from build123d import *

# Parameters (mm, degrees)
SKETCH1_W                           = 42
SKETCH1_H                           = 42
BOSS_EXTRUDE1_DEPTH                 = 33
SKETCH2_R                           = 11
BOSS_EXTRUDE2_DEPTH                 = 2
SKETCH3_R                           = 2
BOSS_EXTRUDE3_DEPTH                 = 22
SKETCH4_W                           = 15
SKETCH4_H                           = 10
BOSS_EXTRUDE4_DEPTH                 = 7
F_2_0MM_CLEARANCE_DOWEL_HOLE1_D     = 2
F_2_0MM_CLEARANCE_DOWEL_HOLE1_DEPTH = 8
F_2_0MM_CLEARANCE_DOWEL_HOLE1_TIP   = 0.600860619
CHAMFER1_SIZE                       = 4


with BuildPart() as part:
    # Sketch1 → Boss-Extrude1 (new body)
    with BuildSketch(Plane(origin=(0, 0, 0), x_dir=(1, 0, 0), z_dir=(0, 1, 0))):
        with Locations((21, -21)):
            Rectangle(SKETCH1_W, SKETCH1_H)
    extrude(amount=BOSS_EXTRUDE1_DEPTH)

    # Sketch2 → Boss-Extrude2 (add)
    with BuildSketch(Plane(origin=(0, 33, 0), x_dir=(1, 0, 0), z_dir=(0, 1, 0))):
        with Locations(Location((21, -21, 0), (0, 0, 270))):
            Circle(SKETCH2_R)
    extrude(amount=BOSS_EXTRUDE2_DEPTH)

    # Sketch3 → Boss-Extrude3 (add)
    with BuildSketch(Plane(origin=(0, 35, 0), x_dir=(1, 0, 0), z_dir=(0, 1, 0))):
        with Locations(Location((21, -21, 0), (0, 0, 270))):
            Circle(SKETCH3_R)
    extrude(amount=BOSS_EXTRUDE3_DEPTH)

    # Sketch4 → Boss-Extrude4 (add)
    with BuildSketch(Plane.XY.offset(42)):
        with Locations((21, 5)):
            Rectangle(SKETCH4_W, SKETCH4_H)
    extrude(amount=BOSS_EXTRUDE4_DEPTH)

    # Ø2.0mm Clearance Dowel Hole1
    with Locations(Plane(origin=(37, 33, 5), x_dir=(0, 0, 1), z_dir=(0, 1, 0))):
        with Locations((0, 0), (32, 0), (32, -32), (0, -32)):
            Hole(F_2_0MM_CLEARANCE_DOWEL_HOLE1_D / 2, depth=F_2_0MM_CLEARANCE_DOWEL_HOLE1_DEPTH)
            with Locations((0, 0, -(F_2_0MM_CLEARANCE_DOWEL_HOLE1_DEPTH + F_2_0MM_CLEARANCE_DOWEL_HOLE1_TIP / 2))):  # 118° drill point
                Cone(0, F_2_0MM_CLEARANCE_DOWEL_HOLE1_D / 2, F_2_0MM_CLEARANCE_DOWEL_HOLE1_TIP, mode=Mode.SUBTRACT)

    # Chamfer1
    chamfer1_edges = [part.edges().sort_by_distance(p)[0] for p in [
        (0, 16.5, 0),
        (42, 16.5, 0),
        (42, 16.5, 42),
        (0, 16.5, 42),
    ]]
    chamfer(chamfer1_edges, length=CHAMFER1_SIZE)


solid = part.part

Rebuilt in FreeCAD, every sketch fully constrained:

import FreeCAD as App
import Part
import Sketcher
from FreeCAD import Vector


def edges_at(feature, points):
    """Names of the edges that pass closest to the given points."""
    edges = feature.Shape.Edges
    near = lambda p: min(range(len(edges)), key=lambda i: edges[i].distToShape(Part.Vertex(*p))[0])
    return sorted({f"Edge{near(p) + 1}" for p in points})


def add_polygon(sketch, points):
    """Adds a closed chain of lines whose ends are joined by coincident constraints."""
    first, n = sketch.GeometryCount, len(points)
    for a, b in zip(points, points[1:] + points[:1]):
        sketch.addGeometry(Part.LineSegment(App.Vector(*a, 0), App.Vector(*b, 0)), False)
    for i in range(n):
        sketch.addConstraint(Sketcher.Constraint("Coincident", first + i, 2, first + (i + 1) % n, 1))

doc = App.newDocument("Part")
body = doc.addObject("PartDesign::Body", "Body")

# Sketch on XZ plane
sketch1 = doc.addObject("Sketcher::SketchObject", "Sketch")
body.addObject(sketch1)
sketch1.AttachmentSupport = (doc.XZ_Plane, [""])
sketch1.MapMode = "FlatFace"
add_polygon(sketch1, [(0, 0), (0, 42), (42, 42), (42, 0)])  # lines 0-3
sketch1.addConstraint([
    Sketcher.Constraint("Vertical", 0),
    Sketcher.Constraint("Horizontal", 1),
    Sketcher.Constraint("Vertical", 2),
    Sketcher.Constraint("Horizontal", 3),
    Sketcher.Constraint("Coincident", 3, 2, -1, 1),
    Sketcher.Constraint("Equal", 3, 0),
    Sketcher.Constraint("DistanceX", 1, 1, 1, 2, 42.0),
])
pad1 = doc.addObject("PartDesign::Pad", "Pad")
body.addObject(pad1)
pad1.Profile = sketch1
pad1.Length = 33
pad1.Reversed = True

# Sketch on XZ plane
sketch2 = doc.addObject("Sketcher::SketchObject", "Sketch001")
body.addObject(sketch2)
sketch2.AttachmentSupport = (doc.XZ_Plane, [""])
sketch2.MapMode = "FlatFace"
sketch2.AttachmentOffset = App.Placement(Vector(0, 0, -33), App.Rotation())
sketch2.addGeometry(Part.Circle(Vector(21, 21, 0), Vector(0, 0, 1), 11), False)
sketch2.addConstraint([
    Sketcher.Constraint("Diameter", 0, 22.0),
    Sketcher.Constraint("DistanceX", -1, 1, 0, 3, 21.0),
    Sketcher.Constraint("DistanceY", -1, 1, 0, 3, 21.0),
])
pad2 = doc.addObject("PartDesign::Pad", "Pad001")
body.addObject(pad2)
pad2.Profile = sketch2
pad2.Length = 2
pad2.Reversed = True

# Sketch on XZ plane
sketch3 = doc.addObject("Sketcher::SketchObject", "Sketch002")
body.addObject(sketch3)
sketch3.AttachmentSupport = (doc.XZ_Plane, [""])
sketch3.MapMode = "FlatFace"
sketch3.AttachmentOffset = App.Placement(Vector(0, 0, -35), App.Rotation())
sketch3.addGeometry(Part.Circle(Vector(21, 21, 0), Vector(0, 0, 1), 2), False)
sketch3.addConstraint([
    Sketcher.Constraint("Diameter", 0, 4.0),
    Sketcher.Constraint("DistanceX", -1, 1, 0, 3, 21.0),
    Sketcher.Constraint("DistanceY", -1, 1, 0, 3, 21.0),
])
pad3 = doc.addObject("PartDesign::Pad", "Pad002")
body.addObject(pad3)
pad3.Profile = sketch3
pad3.Length = 22
pad3.Reversed = True

# Sketch on XY plane
sketch4 = doc.addObject("Sketcher::SketchObject", "Sketch003")
body.addObject(sketch4)
sketch4.AttachmentSupport = (doc.XY_Plane, [""])
sketch4.MapMode = "FlatFace"
sketch4.AttachmentOffset = App.Placement(Vector(0, 0, 42), App.Rotation())
add_polygon(sketch4, [(14, 10), (14, 0), (28, 0), (28, 10)])  # lines 0-3
sketch4.addConstraint([
    Sketcher.Constraint("Vertical", 0),
    Sketcher.Constraint("Horizontal", 1),
    Sketcher.Constraint("Vertical", 2),
    Sketcher.Constraint("Horizontal", 3),
    Sketcher.Constraint("PointOnObject", 0, 2, -1),
    Sketcher.Constraint("DistanceX", 1, 1, 1, 2, 15.0),
    Sketcher.Constraint("DistanceY", 0, 2, 0, 1, 10.0),
    Sketcher.Constraint("DistanceX", -1, 1, 0, 2, 13.5),
])
pad4 = doc.addObject("PartDesign::Pad", "Pad003")
body.addObject(pad4)
pad4.Profile = sketch4
pad4.Length = 7

# Sketch on XZ plane
sketch5 = doc.addObject("Sketcher::SketchObject", "Sketch004")
body.addObject(sketch5)
sketch5.AttachmentSupport = (doc.XZ_Plane, [""])
sketch5.MapMode = "FlatFace"
sketch5.AttachmentOffset = App.Placement(Vector(0, 0, -33), App.Rotation())
sketch5.addGeometry([
    Part.Circle(Vector(37, 5, 0), Vector(0, 0, 1), 1),
    Part.Circle(Vector(37, 37, 0), Vector(0, 0, 1), 1),
    Part.Circle(Vector(5, 37, 0), Vector(0, 0, 1), 1),
    Part.Circle(Vector(5, 5, 0), Vector(0, 0, 1), 1),
], False)
sketch5.addConstraint([
    Sketcher.Constraint("Equal", 0, 1),
    Sketcher.Constraint("Equal", 1, 2),
    Sketcher.Constraint("Equal", 2, 3),
    Sketcher.Constraint("Horizontal", 1, 3, 2, 3),
    Sketcher.Constraint("Horizontal", 0, 3, 3, 3),
    Sketcher.Constraint("Vertical", 0, 3, 1, 3),
    Sketcher.Constraint("Vertical", 2, 3, 3, 3),
    Sketcher.Constraint("Diameter", 0, 2.0),
    Sketcher.Constraint("DistanceX", -1, 1, 0, 3, 37.0),
    Sketcher.Constraint("DistanceY", -1, 1, 0, 3, 5.0),
    Sketcher.Constraint("DistanceY", -1, 1, 1, 3, 37.0),
    Sketcher.Constraint("DistanceX", -1, 1, 2, 3, 5.0),
])
doc.recompute()
hole = doc.addObject("PartDesign::Hole", "Hole")
body.addObject(hole)
hole.Profile = sketch5
hole.ThreadType = "None"
hole.Diameter = 2
hole.DepthType = "Dimension"
hole.Depth = 8
hole.DrillPoint = "Angled"
hole.DrillPointAngle = 118
hole.Reversed = True
doc.recompute()

chamfer = doc.addObject("PartDesign::Chamfer", "Chamfer")
body.addObject(chamfer)
chamfer.Base = (hole, edges_at(hole, [
    (0, 16.5, 0),
    (42, 16.5, 0),
    (42, 16.5, 42),
    (0, 16.5, 42),
]))
chamfer.Size = 4

doc.recompute()
